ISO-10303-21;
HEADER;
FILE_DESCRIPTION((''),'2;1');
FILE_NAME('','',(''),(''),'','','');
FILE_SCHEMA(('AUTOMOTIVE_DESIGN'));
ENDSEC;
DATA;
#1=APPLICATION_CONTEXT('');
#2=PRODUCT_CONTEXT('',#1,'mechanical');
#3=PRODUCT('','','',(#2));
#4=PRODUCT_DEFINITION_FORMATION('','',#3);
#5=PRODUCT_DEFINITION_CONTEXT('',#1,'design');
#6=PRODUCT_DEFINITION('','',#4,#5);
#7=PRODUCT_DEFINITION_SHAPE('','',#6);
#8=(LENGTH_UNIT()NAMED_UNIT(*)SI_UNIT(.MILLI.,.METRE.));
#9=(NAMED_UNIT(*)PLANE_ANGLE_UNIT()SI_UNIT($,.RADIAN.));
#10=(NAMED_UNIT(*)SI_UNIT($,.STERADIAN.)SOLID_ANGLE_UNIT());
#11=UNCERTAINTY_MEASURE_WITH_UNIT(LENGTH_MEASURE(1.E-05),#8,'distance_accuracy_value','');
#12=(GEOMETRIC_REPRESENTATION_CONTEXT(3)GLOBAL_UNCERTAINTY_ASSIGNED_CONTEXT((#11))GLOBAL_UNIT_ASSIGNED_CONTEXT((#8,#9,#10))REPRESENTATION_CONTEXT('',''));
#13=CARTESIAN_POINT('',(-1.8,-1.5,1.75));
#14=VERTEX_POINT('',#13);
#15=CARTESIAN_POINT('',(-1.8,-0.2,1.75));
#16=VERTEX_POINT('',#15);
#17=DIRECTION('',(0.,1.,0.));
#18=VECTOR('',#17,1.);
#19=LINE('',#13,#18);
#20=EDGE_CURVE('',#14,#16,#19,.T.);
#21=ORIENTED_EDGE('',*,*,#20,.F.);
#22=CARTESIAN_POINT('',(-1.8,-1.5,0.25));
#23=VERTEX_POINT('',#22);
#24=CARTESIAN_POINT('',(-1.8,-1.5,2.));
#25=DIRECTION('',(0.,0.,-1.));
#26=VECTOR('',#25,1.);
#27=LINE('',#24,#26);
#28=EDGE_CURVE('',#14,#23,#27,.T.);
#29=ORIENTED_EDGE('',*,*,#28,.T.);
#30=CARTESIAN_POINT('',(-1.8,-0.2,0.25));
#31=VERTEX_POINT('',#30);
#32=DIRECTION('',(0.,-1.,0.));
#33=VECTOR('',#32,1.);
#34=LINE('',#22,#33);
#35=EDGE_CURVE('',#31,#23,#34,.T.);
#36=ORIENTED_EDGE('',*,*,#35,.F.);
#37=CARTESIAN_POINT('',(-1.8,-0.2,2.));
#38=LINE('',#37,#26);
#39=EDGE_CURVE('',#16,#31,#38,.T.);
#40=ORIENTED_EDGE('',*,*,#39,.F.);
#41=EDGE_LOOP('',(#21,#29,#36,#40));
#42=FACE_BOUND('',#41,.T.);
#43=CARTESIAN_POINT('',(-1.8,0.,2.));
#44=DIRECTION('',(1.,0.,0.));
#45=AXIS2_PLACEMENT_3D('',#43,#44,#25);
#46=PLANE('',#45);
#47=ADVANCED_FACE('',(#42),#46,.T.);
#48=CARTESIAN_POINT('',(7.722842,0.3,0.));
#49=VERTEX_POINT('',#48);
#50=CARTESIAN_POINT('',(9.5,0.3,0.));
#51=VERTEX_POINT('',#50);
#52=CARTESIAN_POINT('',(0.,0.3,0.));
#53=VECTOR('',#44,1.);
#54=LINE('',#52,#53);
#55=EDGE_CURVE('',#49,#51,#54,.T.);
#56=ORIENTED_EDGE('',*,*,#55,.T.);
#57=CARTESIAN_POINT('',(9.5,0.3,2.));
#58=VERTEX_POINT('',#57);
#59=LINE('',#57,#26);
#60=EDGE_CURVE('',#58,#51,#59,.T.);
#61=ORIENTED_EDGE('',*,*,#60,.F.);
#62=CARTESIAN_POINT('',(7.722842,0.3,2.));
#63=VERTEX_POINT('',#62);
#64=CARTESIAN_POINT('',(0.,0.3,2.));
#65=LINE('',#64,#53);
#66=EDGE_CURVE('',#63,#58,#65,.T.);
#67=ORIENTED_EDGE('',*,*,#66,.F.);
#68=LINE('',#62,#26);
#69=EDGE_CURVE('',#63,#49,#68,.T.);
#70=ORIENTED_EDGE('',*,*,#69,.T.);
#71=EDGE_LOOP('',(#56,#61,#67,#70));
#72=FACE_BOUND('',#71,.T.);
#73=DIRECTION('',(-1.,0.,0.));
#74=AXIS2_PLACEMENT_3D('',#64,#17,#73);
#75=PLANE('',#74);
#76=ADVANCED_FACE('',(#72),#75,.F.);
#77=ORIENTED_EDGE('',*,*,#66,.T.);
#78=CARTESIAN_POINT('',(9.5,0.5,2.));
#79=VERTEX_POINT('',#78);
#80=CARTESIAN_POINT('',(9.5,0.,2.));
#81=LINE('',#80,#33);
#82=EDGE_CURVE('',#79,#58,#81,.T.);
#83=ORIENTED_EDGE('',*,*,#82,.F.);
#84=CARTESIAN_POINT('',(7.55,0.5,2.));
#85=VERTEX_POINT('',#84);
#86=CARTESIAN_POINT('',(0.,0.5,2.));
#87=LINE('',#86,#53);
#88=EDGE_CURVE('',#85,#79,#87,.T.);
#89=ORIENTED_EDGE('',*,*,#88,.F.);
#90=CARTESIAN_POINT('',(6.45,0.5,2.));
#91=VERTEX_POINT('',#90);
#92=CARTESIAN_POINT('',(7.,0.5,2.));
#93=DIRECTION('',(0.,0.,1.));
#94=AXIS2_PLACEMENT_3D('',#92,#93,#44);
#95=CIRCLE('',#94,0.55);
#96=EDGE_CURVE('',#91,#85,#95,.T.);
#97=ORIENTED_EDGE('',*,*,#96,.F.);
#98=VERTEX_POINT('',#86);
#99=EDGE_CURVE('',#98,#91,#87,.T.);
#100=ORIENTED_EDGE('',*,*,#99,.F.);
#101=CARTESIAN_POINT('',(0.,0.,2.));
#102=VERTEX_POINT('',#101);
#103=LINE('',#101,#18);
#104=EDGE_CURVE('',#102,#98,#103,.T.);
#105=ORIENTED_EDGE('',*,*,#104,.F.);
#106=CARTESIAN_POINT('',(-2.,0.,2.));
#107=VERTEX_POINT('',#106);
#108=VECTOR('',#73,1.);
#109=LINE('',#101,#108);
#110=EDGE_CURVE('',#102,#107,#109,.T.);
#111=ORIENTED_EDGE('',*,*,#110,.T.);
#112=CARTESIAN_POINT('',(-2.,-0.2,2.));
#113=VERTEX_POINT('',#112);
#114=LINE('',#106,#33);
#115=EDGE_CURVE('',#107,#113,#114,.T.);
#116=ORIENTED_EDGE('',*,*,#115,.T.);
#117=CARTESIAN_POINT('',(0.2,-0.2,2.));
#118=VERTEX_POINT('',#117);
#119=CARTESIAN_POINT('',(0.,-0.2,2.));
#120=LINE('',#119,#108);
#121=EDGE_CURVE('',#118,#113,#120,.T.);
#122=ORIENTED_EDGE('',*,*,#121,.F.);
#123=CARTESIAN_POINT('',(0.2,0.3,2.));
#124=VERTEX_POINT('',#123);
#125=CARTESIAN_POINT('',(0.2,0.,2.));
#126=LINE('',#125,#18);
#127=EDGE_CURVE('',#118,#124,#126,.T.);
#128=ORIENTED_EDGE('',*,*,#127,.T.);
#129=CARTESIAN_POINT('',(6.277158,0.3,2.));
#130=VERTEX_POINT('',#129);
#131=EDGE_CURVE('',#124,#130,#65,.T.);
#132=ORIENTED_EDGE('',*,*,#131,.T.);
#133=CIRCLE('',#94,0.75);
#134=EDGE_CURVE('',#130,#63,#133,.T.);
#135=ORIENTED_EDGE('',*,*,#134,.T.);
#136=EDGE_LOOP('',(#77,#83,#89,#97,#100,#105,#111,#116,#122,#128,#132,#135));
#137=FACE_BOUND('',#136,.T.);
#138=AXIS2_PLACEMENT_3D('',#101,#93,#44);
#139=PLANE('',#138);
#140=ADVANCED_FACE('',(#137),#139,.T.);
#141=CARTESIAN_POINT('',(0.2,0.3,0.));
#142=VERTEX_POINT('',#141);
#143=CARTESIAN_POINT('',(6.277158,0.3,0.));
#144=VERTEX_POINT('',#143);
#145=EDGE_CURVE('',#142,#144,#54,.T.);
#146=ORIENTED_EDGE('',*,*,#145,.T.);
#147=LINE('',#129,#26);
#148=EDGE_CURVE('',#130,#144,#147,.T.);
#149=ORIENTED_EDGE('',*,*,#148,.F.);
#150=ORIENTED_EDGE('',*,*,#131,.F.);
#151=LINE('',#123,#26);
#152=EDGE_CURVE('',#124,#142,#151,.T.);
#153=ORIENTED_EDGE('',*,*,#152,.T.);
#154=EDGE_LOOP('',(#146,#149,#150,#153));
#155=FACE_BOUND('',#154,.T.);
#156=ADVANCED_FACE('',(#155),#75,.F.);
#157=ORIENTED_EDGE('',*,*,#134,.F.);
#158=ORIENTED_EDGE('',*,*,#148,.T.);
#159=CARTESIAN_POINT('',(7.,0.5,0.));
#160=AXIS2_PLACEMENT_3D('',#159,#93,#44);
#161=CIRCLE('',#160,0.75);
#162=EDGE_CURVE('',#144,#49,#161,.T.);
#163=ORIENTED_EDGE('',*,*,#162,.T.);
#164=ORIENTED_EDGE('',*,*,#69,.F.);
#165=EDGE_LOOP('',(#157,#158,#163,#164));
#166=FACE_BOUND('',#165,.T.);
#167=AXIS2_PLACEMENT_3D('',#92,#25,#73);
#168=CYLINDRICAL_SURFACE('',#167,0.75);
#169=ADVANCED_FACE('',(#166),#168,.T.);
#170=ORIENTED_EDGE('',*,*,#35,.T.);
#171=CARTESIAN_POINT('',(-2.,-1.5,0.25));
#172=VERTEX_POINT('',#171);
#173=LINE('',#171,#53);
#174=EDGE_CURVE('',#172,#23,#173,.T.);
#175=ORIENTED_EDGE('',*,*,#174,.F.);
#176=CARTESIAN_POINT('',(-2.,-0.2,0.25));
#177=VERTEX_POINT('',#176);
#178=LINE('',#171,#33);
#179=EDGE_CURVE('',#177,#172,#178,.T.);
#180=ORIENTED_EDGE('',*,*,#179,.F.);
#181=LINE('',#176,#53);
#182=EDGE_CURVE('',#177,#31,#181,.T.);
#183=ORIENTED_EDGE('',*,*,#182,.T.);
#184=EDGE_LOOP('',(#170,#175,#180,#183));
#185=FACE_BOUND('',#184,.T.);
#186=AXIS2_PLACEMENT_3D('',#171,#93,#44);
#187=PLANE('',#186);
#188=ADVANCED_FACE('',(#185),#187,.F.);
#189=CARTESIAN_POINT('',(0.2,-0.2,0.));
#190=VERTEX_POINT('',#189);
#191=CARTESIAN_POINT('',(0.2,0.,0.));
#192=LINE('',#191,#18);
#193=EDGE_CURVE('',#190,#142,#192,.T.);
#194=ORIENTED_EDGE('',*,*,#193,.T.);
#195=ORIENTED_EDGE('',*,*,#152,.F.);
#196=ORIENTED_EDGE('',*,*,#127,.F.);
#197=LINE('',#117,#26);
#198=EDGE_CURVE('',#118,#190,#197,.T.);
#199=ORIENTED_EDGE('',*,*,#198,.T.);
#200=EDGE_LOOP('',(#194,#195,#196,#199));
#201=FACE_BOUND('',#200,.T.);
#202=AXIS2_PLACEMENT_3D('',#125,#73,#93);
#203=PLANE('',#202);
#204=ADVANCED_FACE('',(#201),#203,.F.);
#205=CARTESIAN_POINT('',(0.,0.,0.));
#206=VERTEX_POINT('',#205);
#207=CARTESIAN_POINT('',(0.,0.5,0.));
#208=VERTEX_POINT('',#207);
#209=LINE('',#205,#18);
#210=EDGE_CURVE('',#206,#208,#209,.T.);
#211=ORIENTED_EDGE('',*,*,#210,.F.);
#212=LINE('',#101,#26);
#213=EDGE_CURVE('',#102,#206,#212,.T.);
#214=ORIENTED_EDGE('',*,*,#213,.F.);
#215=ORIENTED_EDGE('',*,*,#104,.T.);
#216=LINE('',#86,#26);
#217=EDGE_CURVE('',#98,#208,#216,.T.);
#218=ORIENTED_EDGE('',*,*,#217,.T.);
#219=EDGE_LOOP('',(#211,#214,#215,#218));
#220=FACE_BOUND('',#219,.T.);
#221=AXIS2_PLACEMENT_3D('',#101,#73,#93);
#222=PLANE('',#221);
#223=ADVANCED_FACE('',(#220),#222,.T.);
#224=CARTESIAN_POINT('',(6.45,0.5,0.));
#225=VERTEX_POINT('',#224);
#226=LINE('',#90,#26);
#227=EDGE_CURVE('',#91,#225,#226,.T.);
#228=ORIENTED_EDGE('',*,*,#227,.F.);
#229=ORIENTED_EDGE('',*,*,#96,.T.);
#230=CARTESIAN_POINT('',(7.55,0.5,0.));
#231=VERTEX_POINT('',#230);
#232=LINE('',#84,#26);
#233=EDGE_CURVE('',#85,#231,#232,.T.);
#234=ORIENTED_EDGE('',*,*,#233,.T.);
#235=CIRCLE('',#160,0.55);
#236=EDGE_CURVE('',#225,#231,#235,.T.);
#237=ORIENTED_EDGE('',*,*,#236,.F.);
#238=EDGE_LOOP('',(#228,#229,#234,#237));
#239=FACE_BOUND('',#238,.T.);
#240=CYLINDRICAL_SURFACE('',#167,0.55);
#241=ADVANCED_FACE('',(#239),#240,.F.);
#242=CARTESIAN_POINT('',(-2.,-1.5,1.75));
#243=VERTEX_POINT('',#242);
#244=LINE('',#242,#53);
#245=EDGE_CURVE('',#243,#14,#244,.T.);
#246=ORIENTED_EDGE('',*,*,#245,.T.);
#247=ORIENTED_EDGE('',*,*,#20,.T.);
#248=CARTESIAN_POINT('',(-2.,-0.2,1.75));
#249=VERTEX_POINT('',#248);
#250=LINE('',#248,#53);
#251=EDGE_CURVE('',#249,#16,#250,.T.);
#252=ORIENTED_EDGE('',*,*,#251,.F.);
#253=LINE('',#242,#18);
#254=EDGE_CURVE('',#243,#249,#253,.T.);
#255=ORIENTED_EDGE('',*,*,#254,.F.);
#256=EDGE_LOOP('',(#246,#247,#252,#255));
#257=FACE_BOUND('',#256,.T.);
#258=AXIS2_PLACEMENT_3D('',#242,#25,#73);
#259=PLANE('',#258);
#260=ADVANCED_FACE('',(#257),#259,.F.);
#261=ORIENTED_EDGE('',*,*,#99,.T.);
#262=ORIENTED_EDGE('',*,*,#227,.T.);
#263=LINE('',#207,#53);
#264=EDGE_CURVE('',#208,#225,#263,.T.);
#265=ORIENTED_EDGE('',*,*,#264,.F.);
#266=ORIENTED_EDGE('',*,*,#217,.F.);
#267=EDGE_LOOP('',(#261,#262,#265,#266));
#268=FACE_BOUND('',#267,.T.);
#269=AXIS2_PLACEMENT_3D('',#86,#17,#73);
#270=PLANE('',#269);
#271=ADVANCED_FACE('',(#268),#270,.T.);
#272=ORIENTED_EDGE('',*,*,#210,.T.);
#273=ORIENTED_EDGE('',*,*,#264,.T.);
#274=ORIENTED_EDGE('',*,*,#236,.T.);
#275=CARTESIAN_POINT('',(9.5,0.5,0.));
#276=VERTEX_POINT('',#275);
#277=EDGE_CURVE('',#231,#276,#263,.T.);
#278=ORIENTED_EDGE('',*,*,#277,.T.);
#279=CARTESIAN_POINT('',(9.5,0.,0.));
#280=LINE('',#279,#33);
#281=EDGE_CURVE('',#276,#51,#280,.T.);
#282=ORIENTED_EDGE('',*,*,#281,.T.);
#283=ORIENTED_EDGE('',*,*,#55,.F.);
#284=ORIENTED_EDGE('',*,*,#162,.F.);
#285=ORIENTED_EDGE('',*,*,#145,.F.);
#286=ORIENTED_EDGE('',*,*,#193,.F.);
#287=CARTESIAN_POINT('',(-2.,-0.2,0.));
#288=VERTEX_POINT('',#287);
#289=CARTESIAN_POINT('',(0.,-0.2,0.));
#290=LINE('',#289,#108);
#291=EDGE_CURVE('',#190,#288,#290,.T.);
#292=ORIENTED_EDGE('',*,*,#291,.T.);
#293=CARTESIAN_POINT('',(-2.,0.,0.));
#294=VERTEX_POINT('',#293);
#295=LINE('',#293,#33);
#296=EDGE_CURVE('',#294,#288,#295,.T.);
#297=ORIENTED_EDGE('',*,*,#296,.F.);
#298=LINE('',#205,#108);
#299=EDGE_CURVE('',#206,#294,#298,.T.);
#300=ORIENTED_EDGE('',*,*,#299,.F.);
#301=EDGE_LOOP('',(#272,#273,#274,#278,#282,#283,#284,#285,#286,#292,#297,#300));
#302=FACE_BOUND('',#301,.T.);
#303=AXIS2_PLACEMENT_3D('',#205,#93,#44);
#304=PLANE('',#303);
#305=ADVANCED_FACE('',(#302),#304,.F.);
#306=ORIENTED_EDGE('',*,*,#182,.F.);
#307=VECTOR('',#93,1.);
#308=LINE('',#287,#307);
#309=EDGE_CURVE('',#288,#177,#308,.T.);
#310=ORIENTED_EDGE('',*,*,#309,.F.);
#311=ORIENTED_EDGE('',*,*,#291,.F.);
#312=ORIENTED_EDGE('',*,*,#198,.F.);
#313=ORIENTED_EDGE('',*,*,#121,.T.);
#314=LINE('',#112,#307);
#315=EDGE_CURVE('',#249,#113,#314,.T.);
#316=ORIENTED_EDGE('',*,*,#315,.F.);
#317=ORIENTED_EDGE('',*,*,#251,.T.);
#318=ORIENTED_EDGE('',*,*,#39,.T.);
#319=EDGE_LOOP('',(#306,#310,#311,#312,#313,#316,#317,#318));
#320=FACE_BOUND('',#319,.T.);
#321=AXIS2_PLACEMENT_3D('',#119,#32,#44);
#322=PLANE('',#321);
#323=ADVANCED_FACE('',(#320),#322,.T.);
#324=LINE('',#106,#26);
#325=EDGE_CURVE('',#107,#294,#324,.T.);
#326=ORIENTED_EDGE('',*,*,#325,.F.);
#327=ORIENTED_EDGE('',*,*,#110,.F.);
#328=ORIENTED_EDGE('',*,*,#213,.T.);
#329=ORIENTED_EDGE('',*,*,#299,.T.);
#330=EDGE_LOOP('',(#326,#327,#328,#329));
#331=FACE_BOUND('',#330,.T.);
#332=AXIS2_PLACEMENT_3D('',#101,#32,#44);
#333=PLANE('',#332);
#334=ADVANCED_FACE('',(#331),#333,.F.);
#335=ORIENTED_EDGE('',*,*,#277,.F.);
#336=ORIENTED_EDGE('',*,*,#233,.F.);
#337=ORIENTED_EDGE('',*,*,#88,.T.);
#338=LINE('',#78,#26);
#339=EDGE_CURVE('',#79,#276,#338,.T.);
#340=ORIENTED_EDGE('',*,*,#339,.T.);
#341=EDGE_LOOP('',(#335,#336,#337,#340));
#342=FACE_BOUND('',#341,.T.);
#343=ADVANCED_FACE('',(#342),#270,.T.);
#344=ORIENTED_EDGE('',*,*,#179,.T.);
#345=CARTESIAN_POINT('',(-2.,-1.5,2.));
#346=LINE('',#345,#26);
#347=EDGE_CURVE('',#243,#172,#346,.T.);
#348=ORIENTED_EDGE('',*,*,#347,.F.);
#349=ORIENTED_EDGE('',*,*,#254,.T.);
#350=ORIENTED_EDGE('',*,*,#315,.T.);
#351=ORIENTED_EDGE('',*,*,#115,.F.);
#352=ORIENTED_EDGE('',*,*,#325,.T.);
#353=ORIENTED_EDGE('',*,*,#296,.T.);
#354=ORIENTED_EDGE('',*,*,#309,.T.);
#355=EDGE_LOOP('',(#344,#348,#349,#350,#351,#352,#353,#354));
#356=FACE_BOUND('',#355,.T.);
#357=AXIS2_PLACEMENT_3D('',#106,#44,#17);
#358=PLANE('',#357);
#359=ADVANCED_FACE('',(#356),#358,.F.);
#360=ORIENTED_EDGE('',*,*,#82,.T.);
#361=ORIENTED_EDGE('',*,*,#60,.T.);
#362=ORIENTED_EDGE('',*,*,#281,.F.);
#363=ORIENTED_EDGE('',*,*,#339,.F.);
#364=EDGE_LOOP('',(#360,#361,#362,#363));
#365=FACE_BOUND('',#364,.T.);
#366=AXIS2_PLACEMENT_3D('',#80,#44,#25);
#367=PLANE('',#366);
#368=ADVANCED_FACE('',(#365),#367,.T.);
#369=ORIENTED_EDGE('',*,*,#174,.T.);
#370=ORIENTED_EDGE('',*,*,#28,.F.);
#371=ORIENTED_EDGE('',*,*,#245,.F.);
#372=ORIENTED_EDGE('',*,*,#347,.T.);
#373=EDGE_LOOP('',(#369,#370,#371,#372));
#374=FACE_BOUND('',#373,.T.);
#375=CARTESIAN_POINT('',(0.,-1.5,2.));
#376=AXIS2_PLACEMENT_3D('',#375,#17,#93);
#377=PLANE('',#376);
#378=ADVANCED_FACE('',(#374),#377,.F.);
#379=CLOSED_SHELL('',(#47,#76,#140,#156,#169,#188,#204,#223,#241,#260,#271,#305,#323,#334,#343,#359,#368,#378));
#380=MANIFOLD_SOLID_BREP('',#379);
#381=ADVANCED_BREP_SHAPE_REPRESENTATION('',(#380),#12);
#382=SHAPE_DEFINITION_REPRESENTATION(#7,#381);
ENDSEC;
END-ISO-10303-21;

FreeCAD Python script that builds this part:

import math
import FreeCAD as App
import Part
import Sketcher
from FreeCAD import Vector


def add_polygon(sketch, points):
    """Adds a closed chain of lines whose ends are joined by coincident constraints."""
    first, n = sketch.GeometryCount, len(points)
    for a, b in zip(points, points[1:] + points[:1]):
        sketch.addGeometry(Part.LineSegment(App.Vector(*a, 0), App.Vector(*b, 0)), False)
    for i in range(n):
        sketch.addConstraint(Sketcher.Constraint("Coincident", first + i, 2, first + (i + 1) % n, 1))

doc = App.newDocument("Part")
params = doc.addObject("Spreadsheet::Sheet", "Params")
for row, (alias, value) in enumerate([
    ("sketch1_width", "2 mm"),
    ("sketch1_radius", "0.75 mm"),
    ("sketch1_radius2", "0.55 mm"),
    ("sketch1_width2", "0.2 mm"),
    ("sketch1_height", "0.5 mm"),
    ("pad1_length", "2 mm"),
    ("sketch2_width", "1.3 mm"),
    ("sketch2_height", "0.25 mm"),
], start=1):
    params.set(f"A{row}", alias)
    params.set(f"B{row}", "=" + value)
    params.setAlias(f"B{row}", alias)

body = doc.addObject("PartDesign::Body", "Body")

# Sketch on XY plane
sketch1 = body.newObject("Sketcher::SketchObject", "Sketch")
sketch1.AttachmentSupport = (doc.getObject("XY_Plane"), [""])
sketch1.MapMode = "FlatFace"
sketch1.addGeometry(Part.LineSegment(Vector(0, 0.5, 0), Vector(0, 0, 0)), False)
sketch1.addGeometry(Part.LineSegment(Vector(0, 0, 0), Vector(-2, 0, 0)), False)
sketch1.addGeometry(Part.LineSegment(Vector(-2, 0, 0), Vector(-2, -1.5, 0)), False)
sketch1.addGeometry(Part.LineSegment(Vector(-2, -1.5, 0), Vector(-1.8, -1.5, 0)), False)
sketch1.addGeometry(Part.LineSegment(Vector(-1.8, -1.5, 0), Vector(-1.8, -0.2, 0)), False)
sketch1.addGeometry(Part.LineSegment(Vector(-1.8, -0.2, 0), Vector(0.2, -0.2, 0)), False)
sketch1.addGeometry(Part.LineSegment(Vector(0.2, -0.2, 0), Vector(0.2, 0.3, 0)), False)
sketch1.addGeometry(Part.LineSegment(Vector(0.2, 0.3, 0), Vector(6.28, 0.3, 0)), False)
sketch1.addGeometry(Part.ArcOfCircle(Part.Circle(Vector(7, 0.5, 0), Vector(0, 0, 1), 0.75), math.radians(-165), math.radians(-15)), False)
sketch1.addGeometry(Part.LineSegment(Vector(7.72, 0.3, 0), Vector(9.5, 0.3, 0)), False)
sketch1.addGeometry(Part.LineSegment(Vector(9.5, 0.3, 0), Vector(9.5, 0.5, 0)), False)
sketch1.addGeometry(Part.LineSegment(Vector(9.5, 0.5, 0), Vector(7.55, 0.5, 0)), False)
sketch1.addGeometry(Part.ArcOfCircle(Part.Circle(Vector(7, 0.5, 0), Vector(0, 0, 1), 0.55), math.radians(180), math.radians(360)), False)
sketch1.addGeometry(Part.LineSegment(Vector(6.45, 0.5, 0), Vector(0, 0.5, 0)), False)
sketch1.addConstraint(Sketcher.Constraint("Coincident", 0, 2, 1, 1))
sketch1.addConstraint(Sketcher.Constraint("Coincident", 1, 2, 2, 1))
sketch1.addConstraint(Sketcher.Constraint("Coincident", 2, 2, 3, 1))
sketch1.addConstraint(Sketcher.Constraint("Coincident", 3, 2, 4, 1))
sketch1.addConstraint(Sketcher.Constraint("Coincident", 4, 2, 5, 1))
sketch1.addConstraint(Sketcher.Constraint("Coincident", 5, 2, 6, 1))
sketch1.addConstraint(Sketcher.Constraint("Coincident", 6, 2, 7, 1))
sketch1.addConstraint(Sketcher.Constraint("Coincident", 7, 2, 8, 1))
sketch1.addConstraint(Sketcher.Constraint("Coincident", 8, 2, 9, 1))
sketch1.addConstraint(Sketcher.Constraint("Coincident", 9, 2, 10, 1))
sketch1.addConstraint(Sketcher.Constraint("Coincident", 10, 2, 11, 1))
sketch1.addConstraint(Sketcher.Constraint("Coincident", 11, 2, 12, 2))
sketch1.addConstraint(Sketcher.Constraint("Coincident", 12, 1, 13, 1))
sketch1.addConstraint(Sketcher.Constraint("Coincident", 13, 2, 0, 1))
sketch1.addConstraint(Sketcher.Constraint("Vertical", 0))
sketch1.addConstraint(Sketcher.Constraint("Horizontal", 1))
sketch1.addConstraint(Sketcher.Constraint("Vertical", 2))
sketch1.addConstraint(Sketcher.Constraint("Horizontal", 3))
sketch1.addConstraint(Sketcher.Constraint("Vertical", 4))
sketch1.addConstraint(Sketcher.Constraint("Horizontal", 5))
sketch1.addConstraint(Sketcher.Constraint("Vertical", 6))
sketch1.addConstraint(Sketcher.Constraint("Horizontal", 7))
sketch1.addConstraint(Sketcher.Constraint("Horizontal", 9))
sketch1.addConstraint(Sketcher.Constraint("Vertical", 10))
sketch1.addConstraint(Sketcher.Constraint("Horizontal", 11))
sketch1.addConstraint(Sketcher.Constraint("Horizontal", 13))
sketch1.addConstraint(Sketcher.Constraint("Coincident", 0, 2, -1, 1))
sketch1.addConstraint(Sketcher.Constraint("Coincident", 12, 3, 8, 3))
sketch1.addConstraint(Sketcher.Constraint("Horizontal", 7, 2, 8, 2))
sketch1.addConstraint(Sketcher.Constraint("Horizontal", 12, 3, 10, 2))
sketch1.addConstraint(Sketcher.Constraint("Horizontal", 11, 2, 12, 1))
sketch1.addConstraint(Sketcher.Constraint("Equal", 1, 5))
sketch1.addConstraint(Sketcher.Constraint("Equal", 0, 6))
sketch1.addConstraint(Sketcher.Constraint("Equal", 3, 10))
sketch1.addConstraint(Sketcher.Constraint("DistanceX", 1, 2, 1, 1, 2.0))
sketch1.addConstraint(Sketcher.Constraint("Radius", 8, 0.75))
sketch1.addConstraint(Sketcher.Constraint("Radius", 12, 0.55))
sketch1.addConstraint(Sketcher.Constraint("DistanceX", 3, 1, 3, 2, 0.2))
sketch1.addConstraint(Sketcher.Constraint("DistanceY", 0, 2, 0, 1, 0.5))
sketch1.addConstraint(Sketcher.Constraint("DistanceY", 2, 2, 2, 1, 1.5))
sketch1.addConstraint(Sketcher.Constraint("DistanceX", -1, 1, 8, 3, 7.0))
sketch1.addConstraint(Sketcher.Constraint("DistanceX", 11, 2, 11, 1, 1.95))
sketch1.setExpression("Constraints[34]", "Params.sketch1_width")
sketch1.setExpression("Constraints[35]", "Params.sketch1_radius")
sketch1.setExpression("Constraints[36]", "Params.sketch1_radius2")
sketch1.setExpression("Constraints[37]", "Params.sketch1_width2")
sketch1.setExpression("Constraints[38]", "Params.sketch1_height")
pad1 = body.newObject("PartDesign::Pad", "Pad")
pad1.Profile = sketch1
pad1.setExpression("Length", "Params.pad1_length")

# Sketch on YZ plane
sketch2 = body.newObject("Sketcher::SketchObject", "Sketch001")
sketch2.AttachmentSupport = (doc.getObject("YZ_Plane"), [""])
sketch2.MapMode = "FlatFace"
sketch2.AttachmentOffset = App.Placement(Vector(0, 0, -1.8), App.Rotation())
add_polygon(sketch2, [(-0.2, 2), (-1.5, 2), (-1.5, 1.75), (-0.2, 1.75)])  # lines 0-3
add_polygon(sketch2, [(-0.2, 0.25), (-1.5, 0.25), (-1.5, 0), (-0.2, 0)])  # lines 4-7
sketch2.addConstraint(Sketcher.Constraint("Horizontal", 0))
sketch2.addConstraint(Sketcher.Constraint("Vertical", 1))
sketch2.addConstraint(Sketcher.Constraint("Horizontal", 2))
sketch2.addConstraint(Sketcher.Constraint("Vertical", 3))
sketch2.addConstraint(Sketcher.Constraint("Horizontal", 4))
sketch2.addConstraint(Sketcher.Constraint("Vertical", 5))
sketch2.addConstraint(Sketcher.Constraint("Horizontal", 6))
sketch2.addConstraint(Sketcher.Constraint("Vertical", 7))
sketch2.addConstraint(Sketcher.Constraint("PointOnObject", 5, 2, -1))
sketch2.addConstraint(Sketcher.Constraint("Vertical", 1, 2, 4, 2))
sketch2.addConstraint(Sketcher.Constraint("Vertical", 3, 2, 6, 2))
sketch2.addConstraint(Sketcher.Constraint("Equal", 3, 5))
sketch2.addConstraint(Sketcher.Constraint("DistanceX", 0, 2, 0, 1, 1.3))
sketch2.addConstraint(Sketcher.Constraint("DistanceY", -1, 1, 0, 2, 2.0))
sketch2.addConstraint(Sketcher.Constraint("DistanceY", 1, 2, 1, 1, 0.25))
sketch2.addConstraint(Sketcher.Constraint("DistanceX", 0, 2, -1, 1, 1.5))
sketch2.setExpression("Constraints[20]", "Params.sketch2_width")
sketch2.setExpression("Constraints[22]", "Params.sketch2_height")
pocket1 = body.newObject("PartDesign::Pocket", "Pocket")
pocket1.Profile = sketch2
pocket1.Type = "ThroughAll"

doc.recompute()
